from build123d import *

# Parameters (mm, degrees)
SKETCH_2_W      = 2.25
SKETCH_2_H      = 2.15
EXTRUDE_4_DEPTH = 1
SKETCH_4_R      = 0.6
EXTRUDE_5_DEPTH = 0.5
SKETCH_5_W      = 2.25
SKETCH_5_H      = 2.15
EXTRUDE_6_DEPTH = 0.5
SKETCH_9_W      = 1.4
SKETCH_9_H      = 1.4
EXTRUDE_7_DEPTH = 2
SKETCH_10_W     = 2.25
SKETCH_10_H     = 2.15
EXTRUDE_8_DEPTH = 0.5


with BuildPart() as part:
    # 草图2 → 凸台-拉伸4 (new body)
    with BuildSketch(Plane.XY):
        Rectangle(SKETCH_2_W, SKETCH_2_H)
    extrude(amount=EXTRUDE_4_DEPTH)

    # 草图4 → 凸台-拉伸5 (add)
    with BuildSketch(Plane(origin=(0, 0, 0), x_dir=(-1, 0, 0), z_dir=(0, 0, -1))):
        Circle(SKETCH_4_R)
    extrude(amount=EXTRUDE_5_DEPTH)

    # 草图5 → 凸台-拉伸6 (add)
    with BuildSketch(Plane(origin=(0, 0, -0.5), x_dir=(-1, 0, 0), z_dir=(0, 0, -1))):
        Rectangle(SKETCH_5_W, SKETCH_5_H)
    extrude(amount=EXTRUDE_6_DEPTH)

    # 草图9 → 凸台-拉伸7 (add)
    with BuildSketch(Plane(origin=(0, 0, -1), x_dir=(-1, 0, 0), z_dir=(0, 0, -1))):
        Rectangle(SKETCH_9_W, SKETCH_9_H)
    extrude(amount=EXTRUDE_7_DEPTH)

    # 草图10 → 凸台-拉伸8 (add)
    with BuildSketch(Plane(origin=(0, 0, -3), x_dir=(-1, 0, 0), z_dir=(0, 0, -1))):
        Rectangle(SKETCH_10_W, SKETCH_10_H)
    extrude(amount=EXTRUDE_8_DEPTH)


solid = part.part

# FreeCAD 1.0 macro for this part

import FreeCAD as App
import Part
import Sketcher
from FreeCAD import Vector

doc = App.newDocument("Part")
body = doc.addObject("PartDesign::Body", "Body")

sketch1 = body.newObject("Sketcher::SketchObject", "Sketch")
sketch1.AttachmentSupport = (doc.getObject("XY_Plane"), [""])
sketch1.MapMode = "FlatFace"
sketch1.addGeometry(Part.LineSegment(Vector(-1.125, 1.075, 0), Vector(-1.125, -1.075, 0)), False)
sketch1.addGeometry(Part.LineSegment(Vector(-1.125, -1.075, 0), Vector(1.125, -1.075, 0)), False)
sketch1.addGeometry(Part.LineSegment(Vector(1.125, -1.075, 0), Vector(1.125, 1.075, 0)), False)
sketch1.addGeometry(Part.LineSegment(Vector(1.125, 1.075, 0), Vector(-1.125, 1.075, 0)), False)
sketch1.addConstraint(Sketcher.Constraint("Coincident", 0, 2, 1, 1))
sketch1.addConstraint(Sketcher.Constraint("Coincident", 1, 2, 2, 1))
sketch1.addConstraint(Sketcher.Constraint("Coincident", 2, 2, 3, 1))
sketch1.addConstraint(Sketcher.Constraint("Coincident", 3, 2, 0, 1))
sketch1.addConstraint(Sketcher.Constraint("Vertical", 0))
sketch1.addConstraint(Sketcher.Constraint("Horizontal", 1))
sketch1.addConstraint(Sketcher.Constraint("Vertical", 2))
sketch1.addConstraint(Sketcher.Constraint("Horizontal", 3))
sketch1.addConstraint(Sketcher.Constraint("Symmetric", 0, 2, 2, 2, -1, 1))
sketch1.addConstraint(Sketcher.Constraint("DistanceX", 1, 1, 1, 2, 2.25))
sketch1.addConstraint(Sketcher.Constraint("DistanceY", 0, 2, 0, 1, 2.15))
pad1 = body.newObject("PartDesign::Pad", "Pad")
pad1.Profile = sketch1
pad1.Length = 1

sketch2 = body.newObject("Sketcher::SketchObject", "Sketch001")
sketch2.AttachmentSupport = (doc.getObject("XY_Plane"), [""])
sketch2.MapMode = "FlatFace"
sketch2.addGeometry(Part.Circle(Vector(0, 0, 0), Vector(0, 0, 1), 0.6), False)
sketch2.addConstraint(Sketcher.Constraint("Coincident", 0, 3, -1, 1))
sketch2.addConstraint(Sketcher.Constraint("Diameter", 0, 1.2))
pad2 = body.newObject("PartDesign::Pad", "Pad001")
pad2.Profile = sketch2
pad2.Length = 0.5
pad2.Reversed = True

sketch3 = body.newObject("Sketcher::SketchObject", "Sketch002")
sketch3.AttachmentSupport = (doc.getObject("XY_Plane"), [""])
sketch3.MapMode = "FlatFace"
sketch3.AttachmentOffset = App.Placement(Vector(0, 0, -0.5), App.Rotation())
sketch3.addGeometry(Part.LineSegment(Vector(1.125, 1.075, 0), Vector(1.125, -1.075, 0)), False)
sketch3.addGeometry(Part.LineSegment(Vector(1.125, -1.075, 0), Vector(-1.125, -1.075, 0)), False)
sketch3.addGeometry(Part.LineSegment(Vector(-1.125, -1.075, 0), Vector(-1.125, 1.075, 0)), False)
sketch3.addGeometry(Part.LineSegment(Vector(-1.125, 1.075, 0), Vector(1.125, 1.075, 0)), False)
sketch3.addConstraint(Sketcher.Constraint("Coincident", 0, 2, 1, 1))
sketch3.addConstraint(Sketcher.Constraint("Coincident", 1, 2, 2, 1))
sketch3.addConstraint(Sketcher.Constraint("Coincident", 2, 2, 3, 1))
sketch3.addConstraint(Sketcher.Constraint("Coincident", 3, 2, 0, 1))
sketch3.addConstraint(Sketcher.Constraint("Vertical", 0))
sketch3.addConstraint(Sketcher.Constraint("Horizontal", 1))
sketch3.addConstraint(Sketcher.Constraint("Vertical", 2))
sketch3.addConstraint(Sketcher.Constraint("Horizontal", 3))
sketch3.addConstraint(Sketcher.Constraint("Symmetric", 0, 2, 2, 2, -1, 1))
sketch3.addConstraint(Sketcher.Constraint("DistanceX", 1, 2, 1, 1, 2.25))
sketch3.addConstraint(Sketcher.Constraint("DistanceY", 0, 2, 0, 1, 2.15))
pad3 = body.newObject("PartDesign::Pad", "Pad002")
pad3.Profile = sketch3
pad3.Length = 0.5
pad3.Reversed = True

sketch4 = body.newObject("Sketcher::SketchObject", "Sketch003")
sketch4.AttachmentSupport = (doc.getObject("XY_Plane"), [""])
sketch4.MapMode = "FlatFace"
sketch4.AttachmentOffset = App.Placement(Vector(0, 0, -1), App.Rotation())
sketch4.addGeometry(Part.LineSegment(Vector(0.7, 0.7, 0), Vector(0.7, -0.7, 0)), False)
sketch4.addGeometry(Part.LineSegment(Vector(0.7, -0.7, 0), Vector(-0.7, -0.7, 0)), False)
sketch4.addGeometry(Part.LineSegment(Vector(-0.7, -0.7, 0), Vector(-0.7, 0.7, 0)), False)
sketch4.addGeometry(Part.LineSegment(Vector(-0.7, 0.7, 0), Vector(0.7, 0.7, 0)), False)
sketch4.addConstraint(Sketcher.Constraint("Coincident", 0, 2, 1, 1))
sketch4.addConstraint(Sketcher.Constraint("Coincident", 1, 2, 2, 1))
sketch4.addConstraint(Sketcher.Constraint("Coincident", 2, 2, 3, 1))
sketch4.addConstraint(Sketcher.Constraint("Coincident", 3, 2, 0, 1))
sketch4.addConstraint(Sketcher.Constraint("Vertical", 0))
sketch4.addConstraint(Sketcher.Constraint("Horizontal", 1))
sketch4.addConstraint(Sketcher.Constraint("Vertical", 2))
sketch4.addConstraint(Sketcher.Constraint("Horizontal", 3))
sketch4.addConstraint(Sketcher.Constraint("Symmetric", 0, 2, 2, 2, -1, 1))
sketch4.addConstraint(Sketcher.Constraint("Equal", 3, 0))
sketch4.addConstraint(Sketcher.Constraint("DistanceX", 1, 2, 1, 1, 1.4))
pad4 = body.newObject("PartDesign::Pad", "Pad003")
pad4.Profile = sketch4
pad4.Length = 2
pad4.Reversed = True

sketch5 = body.newObject("Sketcher::SketchObject", "Sketch004")
sketch5.AttachmentSupport = (doc.getObject("XY_Plane"), [""])
sketch5.MapMode = "FlatFace"
sketch5.AttachmentOffset = App.Placement(Vector(0, 0, -3), App.Rotation())
sketch5.addGeometry(Part.LineSegment(Vector(1.125, 1.075, 0), Vector(1.125, -1.075, 0)), False)
sketch5.addGeometry(Part.LineSegment(Vector(1.125, -1.075, 0), Vector(-1.125, -1.075, 0)), False)
sketch5.addGeometry(Part.LineSegment(Vector(-1.125, -1.075, 0), Vector(-1.125, 1.075, 0)), False)
sketch5.addGeometry(Part.LineSegment(Vector(-1.125, 1.075, 0), Vector(1.125, 1.075, 0)), False)
sketch5.addConstraint(Sketcher.Constraint("Coincident", 0, 2, 1, 1))
sketch5.addConstraint(Sketcher.Constraint("Coincident", 1, 2, 2, 1))
sketch5.addConstraint(Sketcher.Constraint("Coincident", 2, 2, 3, 1))
sketch5.addConstraint(Sketcher.Constraint("Coincident", 3, 2, 0, 1))
sketch5.addConstraint(Sketcher.Constraint("Vertical", 0))
sketch5.addConstraint(Sketcher.Constraint("Horizontal", 1))
sketch5.addConstraint(Sketcher.Constraint("Vertical", 2))
sketch5.addConstraint(Sketcher.Constraint("Horizontal", 3))
sketch5.addConstraint(Sketcher.Constraint("Symmetric", 0, 2, 2, 2, -1, 1))
sketch5.addConstraint(Sketcher.Constraint("DistanceX", 1, 2, 1, 1, 2.25))
sketch5.addConstraint(Sketcher.Constraint("DistanceY", 0, 2, 0, 1, 2.15))
pad5 = body.newObject("PartDesign::Pad", "Pad004")
pad5.Profile = sketch5
pad5.Length = 0.5
pad5.Reversed = True

doc.recompute()
